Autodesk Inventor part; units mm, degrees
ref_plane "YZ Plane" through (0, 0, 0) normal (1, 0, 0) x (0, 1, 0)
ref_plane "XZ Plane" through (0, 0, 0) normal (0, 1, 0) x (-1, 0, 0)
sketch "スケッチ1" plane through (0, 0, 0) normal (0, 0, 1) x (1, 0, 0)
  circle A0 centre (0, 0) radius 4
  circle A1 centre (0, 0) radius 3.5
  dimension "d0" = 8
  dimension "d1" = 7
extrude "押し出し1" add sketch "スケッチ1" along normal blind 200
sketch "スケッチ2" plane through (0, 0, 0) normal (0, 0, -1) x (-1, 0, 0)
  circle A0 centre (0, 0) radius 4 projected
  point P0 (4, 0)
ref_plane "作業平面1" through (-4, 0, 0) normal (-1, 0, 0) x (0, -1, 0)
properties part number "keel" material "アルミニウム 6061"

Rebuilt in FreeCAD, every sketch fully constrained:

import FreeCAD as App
import Part
import Sketcher
from FreeCAD import Vector
Q = App.Units.Quantity

doc = App.newDocument("Part")
params = doc.addObject("Spreadsheet::Sheet", "Params")
for row, (alias, value) in enumerate([
    ("sketch1_diameter", "8 mm"),
    ("sketch1_diameter2", "7 mm"),
    ("pad1_length", "200 mm"),
], start=1):
    params.set(f"A{row}", alias)
    params.set(f"B{row}", "=" + value)
    params.setAlias(f"B{row}", alias)

body = doc.addObject("PartDesign::Body", "Body")

# Sketch on XY plane
sketch1 = doc.addObject("Sketcher::SketchObject", "Sketch")
body.addObject(sketch1)
sketch1.AttachmentSupport = (doc.XY_Plane, [""])
sketch1.MapMode = "FlatFace"
sketch1.addGeometry([
    Part.Circle(Vector(0, 0, 0), Vector(0, 0, 1), 4),
    Part.Circle(Vector(0, 0, 0), Vector(0, 0, 1), 3.5),
], False)
sketch1.addConstraint([
    Sketcher.Constraint("Coincident", 0, 3, -1, 1),
    Sketcher.Constraint("Coincident", 1, 3, -1, 1),
    Sketcher.Constraint("Diameter", 0, Q("8 mm")),
    Sketcher.Constraint("Diameter", 1, Q("7 mm")),
])
sketch1.setExpression("Constraints[2]", "Params.sketch1_diameter")
sketch1.setExpression("Constraints[3]", "Params.sketch1_diameter2")
pad1 = doc.addObject("PartDesign::Pad", "Pad")
body.addObject(pad1)
pad1.Profile = sketch1
pad1.setExpression("Length", "Params.pad1_length")

doc.recompute()
